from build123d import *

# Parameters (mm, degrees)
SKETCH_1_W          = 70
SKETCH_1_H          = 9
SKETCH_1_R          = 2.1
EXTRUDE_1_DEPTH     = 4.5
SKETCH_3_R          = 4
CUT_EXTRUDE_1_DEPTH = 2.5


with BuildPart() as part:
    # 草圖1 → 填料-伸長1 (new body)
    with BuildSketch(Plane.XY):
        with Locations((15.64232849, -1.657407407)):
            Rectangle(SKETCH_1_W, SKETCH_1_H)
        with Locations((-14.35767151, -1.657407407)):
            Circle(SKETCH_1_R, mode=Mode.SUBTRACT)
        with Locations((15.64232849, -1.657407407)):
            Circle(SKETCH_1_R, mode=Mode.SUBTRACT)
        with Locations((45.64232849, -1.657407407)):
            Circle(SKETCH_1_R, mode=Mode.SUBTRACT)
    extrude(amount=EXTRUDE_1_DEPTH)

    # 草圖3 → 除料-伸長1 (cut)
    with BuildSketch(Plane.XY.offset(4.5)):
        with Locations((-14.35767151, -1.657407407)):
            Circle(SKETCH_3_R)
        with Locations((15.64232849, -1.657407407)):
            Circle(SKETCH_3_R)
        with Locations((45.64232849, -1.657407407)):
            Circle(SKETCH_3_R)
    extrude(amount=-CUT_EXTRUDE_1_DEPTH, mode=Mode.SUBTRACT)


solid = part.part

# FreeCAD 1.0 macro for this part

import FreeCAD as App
import Part
import Sketcher


def add_polygon(sketch, points):
    """Adds a closed chain of lines whose ends are joined by coincident constraints."""
    first, n = sketch.GeometryCount, len(points)
    for a, b in zip(points, points[1:] + points[:1]):
        sketch.addGeometry(Part.LineSegment(App.Vector(*a, 0), App.Vector(*b, 0)), False)
    for i in range(n):
        sketch.addConstraint(Sketcher.Constraint("Coincident", first + i, 2, first + (i + 1) % n, 1))

doc = App.newDocument("Part")
body = doc.addObject("PartDesign::Body", "Body")

# Sketch on XY plane
sketch1 = body.newObject("Sketcher::SketchObject", "Sketch")
sketch1.AttachmentSupport = (doc.getObject("XY_Plane"), [""])
sketch1.MapMode = "FlatFace"
add_polygon(sketch1, [(-19.4, 2.8), (-19.4, -6.2), (50.6, -6.2), (50.6, 2.8)])  # lines 0-3
sketch1.addGeometry(Part.Circle(App.Vector(-14.4, -1.7, 0), App.Vector(0, 0, 1), 2.1), False)  # 4
sketch1.addGeometry(Part.Circle(App.Vector(15.6, -1.7, 0), App.Vector(0, 0, 1), 2.1), False)  # 5
sketch1.addGeometry(Part.Circle(App.Vector(45.6, -1.7, 0), App.Vector(0, 0, 1), 2.1), False)  # 6
sketch1.addConstraint([
    Sketcher.Constraint("Vertical", 0),
    Sketcher.Constraint("Horizontal", 1),
    Sketcher.Constraint("Vertical", 2),
    Sketcher.Constraint("Horizontal", 3),
    Sketcher.Constraint("Equal", 4, 5),
    Sketcher.Constraint("Equal", 5, 6),
    Sketcher.Constraint("Horizontal", 4, 3, 5, 3),
    Sketcher.Constraint("Horizontal", 5, 3, 6, 3),
    Sketcher.Constraint("Diameter", 4, 4.2),
    Sketcher.Constraint("DistanceX", 1, 1, 1, 2, 70.0),
    Sketcher.Constraint("DistanceY", 0, 2, 0, 1, 9.0),
    Sketcher.Constraint("DistanceX", 4, 3, 5, 3, 30.0),
    Sketcher.Constraint("DistanceX", 5, 3, 6, 3, 30.0),
    Sketcher.Constraint("DistanceX", 0, 2, 4, 3, 5.0),
    Sketcher.Constraint("DistanceY", 0, 2, 4, 3, 4.5),
    Sketcher.Constraint("DistanceX", 4, 3, -1, 1, 14.357672),
    Sketcher.Constraint("DistanceY", 4, 3, -1, 1, 1.657407),
])
pad1 = body.newObject("PartDesign::Pad", "Pad")
pad1.Profile = sketch1
pad1.Length = 4.5

# Sketch on XY plane
sketch2 = body.newObject("Sketcher::SketchObject", "Sketch001")
sketch2.AttachmentSupport = (doc.getObject("XY_Plane"), [""])
sketch2.MapMode = "FlatFace"
sketch2.AttachmentOffset = App.Placement(App.Vector(0, 0, 4.5), App.Rotation())
sketch2.addGeometry([
    Part.Circle(App.Vector(-14.4, -1.7, 0), App.Vector(0, 0, 1), 4),
    Part.Circle(App.Vector(15.6, -1.7, 0), App.Vector(0, 0, 1), 4),
    Part.Circle(App.Vector(45.6, -1.7, 0), App.Vector(0, 0, 1), 4),
], False)
sketch2.addConstraint([
    Sketcher.Constraint("Equal", 0, 1),
    Sketcher.Constraint("Equal", 1, 2),
    Sketcher.Constraint("Horizontal", 0, 3, 1, 3),
    Sketcher.Constraint("Horizontal", 1, 3, 2, 3),
    Sketcher.Constraint("Diameter", 0, 8.0),
    Sketcher.Constraint("DistanceX", 0, 3, 1, 3, 30.0),
    Sketcher.Constraint("DistanceX", 1, 3, 2, 3, 30.0),
    Sketcher.Constraint("DistanceX", 0, 3, -1, 1, 14.357672),
    Sketcher.Constraint("DistanceY", 0, 3, -1, 1, 1.657407),
])
pocket1 = body.newObject("PartDesign::Pocket", "Pocket")
pocket1.Profile = sketch2
pocket1.Length = 2.5

doc.recompute()
